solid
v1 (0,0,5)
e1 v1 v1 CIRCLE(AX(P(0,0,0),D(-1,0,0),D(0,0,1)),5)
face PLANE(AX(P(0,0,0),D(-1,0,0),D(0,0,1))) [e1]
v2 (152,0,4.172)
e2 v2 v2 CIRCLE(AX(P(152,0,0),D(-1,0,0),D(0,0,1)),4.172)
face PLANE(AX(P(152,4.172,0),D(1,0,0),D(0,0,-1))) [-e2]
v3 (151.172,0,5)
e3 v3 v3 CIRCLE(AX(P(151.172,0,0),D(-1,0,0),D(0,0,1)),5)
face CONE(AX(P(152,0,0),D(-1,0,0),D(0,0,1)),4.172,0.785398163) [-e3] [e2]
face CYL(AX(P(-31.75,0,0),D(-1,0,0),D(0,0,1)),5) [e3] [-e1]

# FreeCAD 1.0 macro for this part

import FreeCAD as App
import Part
import Sketcher
from FreeCAD import Vector
Q = App.Units.Quantity


def add_polygon(sketch, points):
    """Adds a closed chain of lines whose ends are joined by coincident constraints."""
    first, n = sketch.GeometryCount, len(points)
    for a, b in zip(points, points[1:] + points[:1]):
        sketch.addGeometry(Part.LineSegment(App.Vector(*a, 0), App.Vector(*b, 0)), False)
    for i in range(n):
        sketch.addConstraint(Sketcher.Constraint("Coincident", first + i, 2, first + (i + 1) % n, 1))

doc = App.newDocument("Part")
body = doc.addObject("PartDesign::Body", "Body")

# Sketch on XY plane
sketch1 = body.newObject("Sketcher::SketchObject", "Sketch")
sketch1.AttachmentSupport = (doc.getObject("XY_Plane"), [""])
sketch1.MapMode = "FlatFace"
add_polygon(sketch1, [(0, 5), (0, 0), (152, 0), (152, 4.172), (151.172, 5)])  # lines 0-4
sketch1.addConstraint(Sketcher.Constraint("Vertical", 0))
sketch1.addConstraint(Sketcher.Constraint("Horizontal", 1))
sketch1.addConstraint(Sketcher.Constraint("Vertical", 2))
sketch1.addConstraint(Sketcher.Constraint("Horizontal", 4))
sketch1.addConstraint(Sketcher.Constraint("Coincident", 0, 2, -1, 1))
sketch1.addConstraint(Sketcher.Constraint("DistanceX", 1, 1, 1, 2, Q("152 mm")))
sketch1.addConstraint(Sketcher.Constraint("DistanceY", 0, 2, 0, 1, Q("5 mm")))
sketch1.addConstraint(Sketcher.Constraint("Angle", 3, Q("135 deg")))
sketch1.addConstraint(Sketcher.Constraint("DistanceX", 4, 2, 4, 1, Q("151.172 mm")))
revolution = body.newObject("PartDesign::Revolution", "Revolution")
revolution.Profile = sketch1
revolution.ReferenceAxis = (sketch1, ["H_Axis"])
revolution.Angle = 360

doc.recompute()
